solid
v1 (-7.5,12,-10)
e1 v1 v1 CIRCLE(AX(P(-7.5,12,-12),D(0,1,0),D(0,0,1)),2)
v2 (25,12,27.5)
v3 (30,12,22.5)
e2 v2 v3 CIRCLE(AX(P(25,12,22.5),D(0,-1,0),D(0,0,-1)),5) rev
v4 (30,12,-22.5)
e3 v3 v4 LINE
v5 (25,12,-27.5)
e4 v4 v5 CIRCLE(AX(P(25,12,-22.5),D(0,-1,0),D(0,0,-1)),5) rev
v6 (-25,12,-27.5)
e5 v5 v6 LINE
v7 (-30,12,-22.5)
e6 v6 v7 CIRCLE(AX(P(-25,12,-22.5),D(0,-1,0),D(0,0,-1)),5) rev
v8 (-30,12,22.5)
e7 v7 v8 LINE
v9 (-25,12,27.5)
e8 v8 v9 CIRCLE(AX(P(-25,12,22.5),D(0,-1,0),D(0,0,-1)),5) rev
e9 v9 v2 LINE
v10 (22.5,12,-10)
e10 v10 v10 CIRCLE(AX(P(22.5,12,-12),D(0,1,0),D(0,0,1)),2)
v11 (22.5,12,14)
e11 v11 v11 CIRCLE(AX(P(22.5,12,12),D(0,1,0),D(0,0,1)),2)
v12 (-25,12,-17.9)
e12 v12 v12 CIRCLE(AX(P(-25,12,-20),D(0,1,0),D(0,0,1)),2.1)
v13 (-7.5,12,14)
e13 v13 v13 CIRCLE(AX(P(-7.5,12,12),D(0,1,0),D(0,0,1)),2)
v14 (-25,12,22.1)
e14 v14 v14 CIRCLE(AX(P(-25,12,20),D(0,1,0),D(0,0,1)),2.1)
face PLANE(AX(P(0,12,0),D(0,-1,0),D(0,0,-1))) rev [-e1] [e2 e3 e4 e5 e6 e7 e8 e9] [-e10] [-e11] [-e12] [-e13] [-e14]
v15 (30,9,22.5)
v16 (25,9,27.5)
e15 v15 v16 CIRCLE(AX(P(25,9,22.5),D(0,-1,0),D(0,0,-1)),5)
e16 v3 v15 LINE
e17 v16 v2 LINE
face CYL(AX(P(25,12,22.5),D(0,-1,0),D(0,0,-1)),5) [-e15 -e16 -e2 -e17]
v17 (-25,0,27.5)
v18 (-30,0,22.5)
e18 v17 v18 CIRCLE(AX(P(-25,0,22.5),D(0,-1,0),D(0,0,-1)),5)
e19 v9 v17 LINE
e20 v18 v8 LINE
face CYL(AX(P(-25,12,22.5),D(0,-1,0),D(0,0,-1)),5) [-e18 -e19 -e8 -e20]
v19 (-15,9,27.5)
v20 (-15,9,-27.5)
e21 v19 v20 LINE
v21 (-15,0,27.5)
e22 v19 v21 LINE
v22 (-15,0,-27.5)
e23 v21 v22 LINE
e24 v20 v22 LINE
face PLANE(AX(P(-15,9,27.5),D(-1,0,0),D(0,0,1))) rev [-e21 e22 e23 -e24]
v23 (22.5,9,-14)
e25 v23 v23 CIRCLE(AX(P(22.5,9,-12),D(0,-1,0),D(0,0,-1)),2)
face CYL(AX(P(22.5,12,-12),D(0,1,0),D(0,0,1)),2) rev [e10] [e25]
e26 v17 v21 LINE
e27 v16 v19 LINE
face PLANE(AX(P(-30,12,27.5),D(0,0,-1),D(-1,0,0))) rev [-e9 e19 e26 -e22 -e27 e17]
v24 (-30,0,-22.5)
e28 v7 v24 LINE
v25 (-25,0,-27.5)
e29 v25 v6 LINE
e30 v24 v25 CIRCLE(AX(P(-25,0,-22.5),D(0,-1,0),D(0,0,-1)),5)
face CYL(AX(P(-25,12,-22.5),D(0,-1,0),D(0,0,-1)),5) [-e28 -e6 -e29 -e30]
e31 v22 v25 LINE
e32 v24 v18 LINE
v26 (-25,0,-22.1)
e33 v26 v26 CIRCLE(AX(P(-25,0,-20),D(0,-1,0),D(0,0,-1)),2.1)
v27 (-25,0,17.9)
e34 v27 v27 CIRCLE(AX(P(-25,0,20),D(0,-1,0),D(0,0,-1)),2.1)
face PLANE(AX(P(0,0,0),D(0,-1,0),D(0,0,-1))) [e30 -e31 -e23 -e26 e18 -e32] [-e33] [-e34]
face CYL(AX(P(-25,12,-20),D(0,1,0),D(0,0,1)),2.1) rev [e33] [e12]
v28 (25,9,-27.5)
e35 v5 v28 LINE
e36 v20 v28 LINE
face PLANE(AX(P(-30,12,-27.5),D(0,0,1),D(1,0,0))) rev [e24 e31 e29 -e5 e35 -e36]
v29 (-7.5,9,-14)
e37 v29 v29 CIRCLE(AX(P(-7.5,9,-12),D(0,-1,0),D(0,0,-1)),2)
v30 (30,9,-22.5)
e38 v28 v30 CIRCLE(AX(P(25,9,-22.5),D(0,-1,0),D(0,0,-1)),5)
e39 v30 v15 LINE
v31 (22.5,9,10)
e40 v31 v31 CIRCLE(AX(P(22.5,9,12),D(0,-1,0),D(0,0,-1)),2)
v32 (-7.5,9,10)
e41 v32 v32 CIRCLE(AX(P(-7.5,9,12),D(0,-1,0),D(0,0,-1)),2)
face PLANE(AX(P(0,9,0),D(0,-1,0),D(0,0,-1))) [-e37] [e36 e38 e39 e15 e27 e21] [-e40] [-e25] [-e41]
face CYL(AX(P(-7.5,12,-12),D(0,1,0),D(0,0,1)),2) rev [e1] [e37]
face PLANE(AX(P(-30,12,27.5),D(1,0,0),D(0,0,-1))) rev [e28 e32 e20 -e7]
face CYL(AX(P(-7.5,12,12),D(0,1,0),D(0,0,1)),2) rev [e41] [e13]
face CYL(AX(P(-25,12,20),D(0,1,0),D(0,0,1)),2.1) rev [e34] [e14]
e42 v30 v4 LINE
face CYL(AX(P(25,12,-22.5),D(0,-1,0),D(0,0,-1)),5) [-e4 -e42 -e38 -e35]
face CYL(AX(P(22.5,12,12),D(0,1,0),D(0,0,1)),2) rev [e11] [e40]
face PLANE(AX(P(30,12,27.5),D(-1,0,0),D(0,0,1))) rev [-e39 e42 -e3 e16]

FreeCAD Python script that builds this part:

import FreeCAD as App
import Part
import Sketcher


def edges_at(feature, points):
    """Names of the edges that pass closest to the given points."""
    edges = feature.Shape.Edges
    near = lambda p: min(range(len(edges)), key=lambda i: edges[i].distToShape(Part.Vertex(*p))[0])
    return sorted({f"Edge{near(p) + 1}" for p in points})

doc = App.newDocument("Part")
body = doc.addObject("PartDesign::Body", "Body")

sketch1 = body.newObject("Sketcher::SketchObject", "Sketch")
sketch1.AttachmentSupport = (doc.getObject("XZ_Plane"), [""])
sketch1.MapMode = "FlatFace"
sketch1.addGeometry([
    Part.LineSegment(App.Vector(-30, -28, 0), App.Vector(-30, 28, 0)),
    Part.LineSegment(App.Vector(-30, 28, 0), App.Vector(30, 28, 0)),
    Part.LineSegment(App.Vector(30, 28, 0), App.Vector(30, -28, 0)),
    Part.LineSegment(App.Vector(30, -28, 0), App.Vector(-30, -28, 0)),
], False)
sketch1.addConstraint([
    Sketcher.Constraint("Coincident", 0, 2, 1, 1),
    Sketcher.Constraint("Coincident", 1, 2, 2, 1),
    Sketcher.Constraint("Coincident", 2, 2, 3, 1),
    Sketcher.Constraint("Coincident", 3, 2, 0, 1),
    Sketcher.Constraint("Vertical", 0),
    Sketcher.Constraint("Horizontal", 1),
    Sketcher.Constraint("Vertical", 2),
    Sketcher.Constraint("Horizontal", 3),
    Sketcher.Constraint("Symmetric", 0, 2, 2, 2, -1, 1),
    Sketcher.Constraint("DistanceX", 1, 1, 1, 2, 60.0),
    Sketcher.Constraint("DistanceY", 0, 1, 0, 2, 55.0),
])
pad1 = body.newObject("PartDesign::Pad", "Pad")
pad1.Profile = sketch1
pad1.Length = 12
pad1.Reversed = True

sketch2 = body.newObject("Sketcher::SketchObject", "Sketch001")
sketch2.AttachmentSupport = (doc.getObject("XZ_Plane"), [""])
sketch2.MapMode = "FlatFace"
sketch2.addGeometry([
    Part.LineSegment(App.Vector(-15, 28, 0), App.Vector(-15, -28, 0)),
    Part.LineSegment(App.Vector(-15, -28, 0), App.Vector(30, -28, 0)),
    Part.LineSegment(App.Vector(30, -28, 0), App.Vector(30, 28, 0)),
    Part.LineSegment(App.Vector(30, 28, 0), App.Vector(-15, 28, 0)),
], False)
sketch2.addConstraint([
    Sketcher.Constraint("Coincident", 0, 2, 1, 1),
    Sketcher.Constraint("Coincident", 1, 2, 2, 1),
    Sketcher.Constraint("Coincident", 2, 2, 3, 1),
    Sketcher.Constraint("Coincident", 3, 2, 0, 1),
    Sketcher.Constraint("Vertical", 0),
    Sketcher.Constraint("Horizontal", 1),
    Sketcher.Constraint("Vertical", 2),
    Sketcher.Constraint("Horizontal", 3),
    Sketcher.Constraint("DistanceX", 1, 1, 1, 2, 45.0),
    Sketcher.Constraint("DistanceY", 0, 2, 0, 1, 55.0),
    Sketcher.Constraint("DistanceX", 0, 2, -1, 1, 15.0),
    Sketcher.Constraint("DistanceY", 0, 2, -1, 1, 27.5),
])
pocket1 = body.newObject("PartDesign::Pocket", "Pocket")
pocket1.Profile = sketch2
pocket1.Length = 9

sketch3 = body.newObject("Sketcher::SketchObject", "Sketch002")
sketch3.AttachmentSupport = (doc.getObject("XZ_Plane"), [""])
sketch3.MapMode = "FlatFace"
sketch3.AttachmentOffset = App.Placement(App.Vector(0, 0, -12), App.Rotation())
sketch3.addGeometry([
    Part.Circle(App.Vector(-25, -20, 0), App.Vector(0, 0, 1), 2.1),
    Part.Circle(App.Vector(-25, 20, 0), App.Vector(0, 0, 1), 2.1),
], False)
sketch3.addConstraint([
    Sketcher.Constraint("Equal", 0, 1),
    Sketcher.Constraint("Symmetric", 0, 3, 1, 3, -1),
    Sketcher.Constraint("Diameter", 0, 4.2),
    Sketcher.Constraint("DistanceX", 0, 3, -1, 1, 25.0),
    Sketcher.Constraint("DistanceY", 0, 3, -1, 1, 20.0),
])
doc.recompute()
hole = body.newObject("PartDesign::Hole", "Hole")
hole.Profile = sketch3
hole.ThreadType = "None"
hole.Diameter = 4.2
hole.DepthType = "Dimension"
hole.Depth = 12.4
hole.DrillPoint = "Angled"
hole.DrillPointAngle = 118
hole.Reversed = True
doc.recompute()

fillet = body.newObject("PartDesign::Fillet", "Fillet")
fillet.Base = (hole, edges_at(hole, [
    (30, 10.5, 27.5),
    (-30, 6, 27.5),
    (-30, 6, -27.5),
    (30, 10.5, -27.5),
]))
fillet.Radius = 5

sketch4 = body.newObject("Sketcher::SketchObject", "Sketch003")
sketch4.AttachmentSupport = (doc.getObject("XZ_Plane"), [""])
sketch4.MapMode = "FlatFace"
sketch4.AttachmentOffset = App.Placement(App.Vector(0, 0, -12), App.Rotation())
sketch4.addGeometry([
    Part.Circle(App.Vector(-7.5, -12, 0), App.Vector(0, 0, 1), 2),
    Part.Circle(App.Vector(-7.5, 12, 0), App.Vector(0, 0, 1), 2),
    Part.Circle(App.Vector(22.5, 12, 0), App.Vector(0, 0, 1), 2),
    Part.Circle(App.Vector(22.5, -12, 0), App.Vector(0, 0, 1), 2),
], False)
sketch4.addConstraint([
    Sketcher.Constraint("Equal", 0, 1),
    Sketcher.Constraint("Equal", 1, 2),
    Sketcher.Constraint("Equal", 2, 3),
    Sketcher.Constraint("Symmetric", 0, 3, 1, 3, -1),
    Sketcher.Constraint("Symmetric", 2, 3, 3, 3, -1),
    Sketcher.Constraint("Horizontal", 1, 3, 2, 3),
    Sketcher.Constraint("Diameter", 0, 4.0),
    Sketcher.Constraint("DistanceY", 0, 3, -1, 1, 12.0),
    Sketcher.Constraint("DistanceX", 1, 3, 2, 3, 30.0),
    Sketcher.Constraint("DistanceX", 0, 3, -1, 1, 7.5),
])
doc.recompute()
hole2 = body.newObject("PartDesign::Hole", "Hole001")
hole2.Profile = sketch4
hole2.ThreadType = "None"
hole2.Diameter = 4
hole2.DepthType = "Dimension"
hole2.Depth = 12.4
hole2.DrillPoint = "Angled"
hole2.DrillPointAngle = 118
hole2.Reversed = True

doc.recompute()
